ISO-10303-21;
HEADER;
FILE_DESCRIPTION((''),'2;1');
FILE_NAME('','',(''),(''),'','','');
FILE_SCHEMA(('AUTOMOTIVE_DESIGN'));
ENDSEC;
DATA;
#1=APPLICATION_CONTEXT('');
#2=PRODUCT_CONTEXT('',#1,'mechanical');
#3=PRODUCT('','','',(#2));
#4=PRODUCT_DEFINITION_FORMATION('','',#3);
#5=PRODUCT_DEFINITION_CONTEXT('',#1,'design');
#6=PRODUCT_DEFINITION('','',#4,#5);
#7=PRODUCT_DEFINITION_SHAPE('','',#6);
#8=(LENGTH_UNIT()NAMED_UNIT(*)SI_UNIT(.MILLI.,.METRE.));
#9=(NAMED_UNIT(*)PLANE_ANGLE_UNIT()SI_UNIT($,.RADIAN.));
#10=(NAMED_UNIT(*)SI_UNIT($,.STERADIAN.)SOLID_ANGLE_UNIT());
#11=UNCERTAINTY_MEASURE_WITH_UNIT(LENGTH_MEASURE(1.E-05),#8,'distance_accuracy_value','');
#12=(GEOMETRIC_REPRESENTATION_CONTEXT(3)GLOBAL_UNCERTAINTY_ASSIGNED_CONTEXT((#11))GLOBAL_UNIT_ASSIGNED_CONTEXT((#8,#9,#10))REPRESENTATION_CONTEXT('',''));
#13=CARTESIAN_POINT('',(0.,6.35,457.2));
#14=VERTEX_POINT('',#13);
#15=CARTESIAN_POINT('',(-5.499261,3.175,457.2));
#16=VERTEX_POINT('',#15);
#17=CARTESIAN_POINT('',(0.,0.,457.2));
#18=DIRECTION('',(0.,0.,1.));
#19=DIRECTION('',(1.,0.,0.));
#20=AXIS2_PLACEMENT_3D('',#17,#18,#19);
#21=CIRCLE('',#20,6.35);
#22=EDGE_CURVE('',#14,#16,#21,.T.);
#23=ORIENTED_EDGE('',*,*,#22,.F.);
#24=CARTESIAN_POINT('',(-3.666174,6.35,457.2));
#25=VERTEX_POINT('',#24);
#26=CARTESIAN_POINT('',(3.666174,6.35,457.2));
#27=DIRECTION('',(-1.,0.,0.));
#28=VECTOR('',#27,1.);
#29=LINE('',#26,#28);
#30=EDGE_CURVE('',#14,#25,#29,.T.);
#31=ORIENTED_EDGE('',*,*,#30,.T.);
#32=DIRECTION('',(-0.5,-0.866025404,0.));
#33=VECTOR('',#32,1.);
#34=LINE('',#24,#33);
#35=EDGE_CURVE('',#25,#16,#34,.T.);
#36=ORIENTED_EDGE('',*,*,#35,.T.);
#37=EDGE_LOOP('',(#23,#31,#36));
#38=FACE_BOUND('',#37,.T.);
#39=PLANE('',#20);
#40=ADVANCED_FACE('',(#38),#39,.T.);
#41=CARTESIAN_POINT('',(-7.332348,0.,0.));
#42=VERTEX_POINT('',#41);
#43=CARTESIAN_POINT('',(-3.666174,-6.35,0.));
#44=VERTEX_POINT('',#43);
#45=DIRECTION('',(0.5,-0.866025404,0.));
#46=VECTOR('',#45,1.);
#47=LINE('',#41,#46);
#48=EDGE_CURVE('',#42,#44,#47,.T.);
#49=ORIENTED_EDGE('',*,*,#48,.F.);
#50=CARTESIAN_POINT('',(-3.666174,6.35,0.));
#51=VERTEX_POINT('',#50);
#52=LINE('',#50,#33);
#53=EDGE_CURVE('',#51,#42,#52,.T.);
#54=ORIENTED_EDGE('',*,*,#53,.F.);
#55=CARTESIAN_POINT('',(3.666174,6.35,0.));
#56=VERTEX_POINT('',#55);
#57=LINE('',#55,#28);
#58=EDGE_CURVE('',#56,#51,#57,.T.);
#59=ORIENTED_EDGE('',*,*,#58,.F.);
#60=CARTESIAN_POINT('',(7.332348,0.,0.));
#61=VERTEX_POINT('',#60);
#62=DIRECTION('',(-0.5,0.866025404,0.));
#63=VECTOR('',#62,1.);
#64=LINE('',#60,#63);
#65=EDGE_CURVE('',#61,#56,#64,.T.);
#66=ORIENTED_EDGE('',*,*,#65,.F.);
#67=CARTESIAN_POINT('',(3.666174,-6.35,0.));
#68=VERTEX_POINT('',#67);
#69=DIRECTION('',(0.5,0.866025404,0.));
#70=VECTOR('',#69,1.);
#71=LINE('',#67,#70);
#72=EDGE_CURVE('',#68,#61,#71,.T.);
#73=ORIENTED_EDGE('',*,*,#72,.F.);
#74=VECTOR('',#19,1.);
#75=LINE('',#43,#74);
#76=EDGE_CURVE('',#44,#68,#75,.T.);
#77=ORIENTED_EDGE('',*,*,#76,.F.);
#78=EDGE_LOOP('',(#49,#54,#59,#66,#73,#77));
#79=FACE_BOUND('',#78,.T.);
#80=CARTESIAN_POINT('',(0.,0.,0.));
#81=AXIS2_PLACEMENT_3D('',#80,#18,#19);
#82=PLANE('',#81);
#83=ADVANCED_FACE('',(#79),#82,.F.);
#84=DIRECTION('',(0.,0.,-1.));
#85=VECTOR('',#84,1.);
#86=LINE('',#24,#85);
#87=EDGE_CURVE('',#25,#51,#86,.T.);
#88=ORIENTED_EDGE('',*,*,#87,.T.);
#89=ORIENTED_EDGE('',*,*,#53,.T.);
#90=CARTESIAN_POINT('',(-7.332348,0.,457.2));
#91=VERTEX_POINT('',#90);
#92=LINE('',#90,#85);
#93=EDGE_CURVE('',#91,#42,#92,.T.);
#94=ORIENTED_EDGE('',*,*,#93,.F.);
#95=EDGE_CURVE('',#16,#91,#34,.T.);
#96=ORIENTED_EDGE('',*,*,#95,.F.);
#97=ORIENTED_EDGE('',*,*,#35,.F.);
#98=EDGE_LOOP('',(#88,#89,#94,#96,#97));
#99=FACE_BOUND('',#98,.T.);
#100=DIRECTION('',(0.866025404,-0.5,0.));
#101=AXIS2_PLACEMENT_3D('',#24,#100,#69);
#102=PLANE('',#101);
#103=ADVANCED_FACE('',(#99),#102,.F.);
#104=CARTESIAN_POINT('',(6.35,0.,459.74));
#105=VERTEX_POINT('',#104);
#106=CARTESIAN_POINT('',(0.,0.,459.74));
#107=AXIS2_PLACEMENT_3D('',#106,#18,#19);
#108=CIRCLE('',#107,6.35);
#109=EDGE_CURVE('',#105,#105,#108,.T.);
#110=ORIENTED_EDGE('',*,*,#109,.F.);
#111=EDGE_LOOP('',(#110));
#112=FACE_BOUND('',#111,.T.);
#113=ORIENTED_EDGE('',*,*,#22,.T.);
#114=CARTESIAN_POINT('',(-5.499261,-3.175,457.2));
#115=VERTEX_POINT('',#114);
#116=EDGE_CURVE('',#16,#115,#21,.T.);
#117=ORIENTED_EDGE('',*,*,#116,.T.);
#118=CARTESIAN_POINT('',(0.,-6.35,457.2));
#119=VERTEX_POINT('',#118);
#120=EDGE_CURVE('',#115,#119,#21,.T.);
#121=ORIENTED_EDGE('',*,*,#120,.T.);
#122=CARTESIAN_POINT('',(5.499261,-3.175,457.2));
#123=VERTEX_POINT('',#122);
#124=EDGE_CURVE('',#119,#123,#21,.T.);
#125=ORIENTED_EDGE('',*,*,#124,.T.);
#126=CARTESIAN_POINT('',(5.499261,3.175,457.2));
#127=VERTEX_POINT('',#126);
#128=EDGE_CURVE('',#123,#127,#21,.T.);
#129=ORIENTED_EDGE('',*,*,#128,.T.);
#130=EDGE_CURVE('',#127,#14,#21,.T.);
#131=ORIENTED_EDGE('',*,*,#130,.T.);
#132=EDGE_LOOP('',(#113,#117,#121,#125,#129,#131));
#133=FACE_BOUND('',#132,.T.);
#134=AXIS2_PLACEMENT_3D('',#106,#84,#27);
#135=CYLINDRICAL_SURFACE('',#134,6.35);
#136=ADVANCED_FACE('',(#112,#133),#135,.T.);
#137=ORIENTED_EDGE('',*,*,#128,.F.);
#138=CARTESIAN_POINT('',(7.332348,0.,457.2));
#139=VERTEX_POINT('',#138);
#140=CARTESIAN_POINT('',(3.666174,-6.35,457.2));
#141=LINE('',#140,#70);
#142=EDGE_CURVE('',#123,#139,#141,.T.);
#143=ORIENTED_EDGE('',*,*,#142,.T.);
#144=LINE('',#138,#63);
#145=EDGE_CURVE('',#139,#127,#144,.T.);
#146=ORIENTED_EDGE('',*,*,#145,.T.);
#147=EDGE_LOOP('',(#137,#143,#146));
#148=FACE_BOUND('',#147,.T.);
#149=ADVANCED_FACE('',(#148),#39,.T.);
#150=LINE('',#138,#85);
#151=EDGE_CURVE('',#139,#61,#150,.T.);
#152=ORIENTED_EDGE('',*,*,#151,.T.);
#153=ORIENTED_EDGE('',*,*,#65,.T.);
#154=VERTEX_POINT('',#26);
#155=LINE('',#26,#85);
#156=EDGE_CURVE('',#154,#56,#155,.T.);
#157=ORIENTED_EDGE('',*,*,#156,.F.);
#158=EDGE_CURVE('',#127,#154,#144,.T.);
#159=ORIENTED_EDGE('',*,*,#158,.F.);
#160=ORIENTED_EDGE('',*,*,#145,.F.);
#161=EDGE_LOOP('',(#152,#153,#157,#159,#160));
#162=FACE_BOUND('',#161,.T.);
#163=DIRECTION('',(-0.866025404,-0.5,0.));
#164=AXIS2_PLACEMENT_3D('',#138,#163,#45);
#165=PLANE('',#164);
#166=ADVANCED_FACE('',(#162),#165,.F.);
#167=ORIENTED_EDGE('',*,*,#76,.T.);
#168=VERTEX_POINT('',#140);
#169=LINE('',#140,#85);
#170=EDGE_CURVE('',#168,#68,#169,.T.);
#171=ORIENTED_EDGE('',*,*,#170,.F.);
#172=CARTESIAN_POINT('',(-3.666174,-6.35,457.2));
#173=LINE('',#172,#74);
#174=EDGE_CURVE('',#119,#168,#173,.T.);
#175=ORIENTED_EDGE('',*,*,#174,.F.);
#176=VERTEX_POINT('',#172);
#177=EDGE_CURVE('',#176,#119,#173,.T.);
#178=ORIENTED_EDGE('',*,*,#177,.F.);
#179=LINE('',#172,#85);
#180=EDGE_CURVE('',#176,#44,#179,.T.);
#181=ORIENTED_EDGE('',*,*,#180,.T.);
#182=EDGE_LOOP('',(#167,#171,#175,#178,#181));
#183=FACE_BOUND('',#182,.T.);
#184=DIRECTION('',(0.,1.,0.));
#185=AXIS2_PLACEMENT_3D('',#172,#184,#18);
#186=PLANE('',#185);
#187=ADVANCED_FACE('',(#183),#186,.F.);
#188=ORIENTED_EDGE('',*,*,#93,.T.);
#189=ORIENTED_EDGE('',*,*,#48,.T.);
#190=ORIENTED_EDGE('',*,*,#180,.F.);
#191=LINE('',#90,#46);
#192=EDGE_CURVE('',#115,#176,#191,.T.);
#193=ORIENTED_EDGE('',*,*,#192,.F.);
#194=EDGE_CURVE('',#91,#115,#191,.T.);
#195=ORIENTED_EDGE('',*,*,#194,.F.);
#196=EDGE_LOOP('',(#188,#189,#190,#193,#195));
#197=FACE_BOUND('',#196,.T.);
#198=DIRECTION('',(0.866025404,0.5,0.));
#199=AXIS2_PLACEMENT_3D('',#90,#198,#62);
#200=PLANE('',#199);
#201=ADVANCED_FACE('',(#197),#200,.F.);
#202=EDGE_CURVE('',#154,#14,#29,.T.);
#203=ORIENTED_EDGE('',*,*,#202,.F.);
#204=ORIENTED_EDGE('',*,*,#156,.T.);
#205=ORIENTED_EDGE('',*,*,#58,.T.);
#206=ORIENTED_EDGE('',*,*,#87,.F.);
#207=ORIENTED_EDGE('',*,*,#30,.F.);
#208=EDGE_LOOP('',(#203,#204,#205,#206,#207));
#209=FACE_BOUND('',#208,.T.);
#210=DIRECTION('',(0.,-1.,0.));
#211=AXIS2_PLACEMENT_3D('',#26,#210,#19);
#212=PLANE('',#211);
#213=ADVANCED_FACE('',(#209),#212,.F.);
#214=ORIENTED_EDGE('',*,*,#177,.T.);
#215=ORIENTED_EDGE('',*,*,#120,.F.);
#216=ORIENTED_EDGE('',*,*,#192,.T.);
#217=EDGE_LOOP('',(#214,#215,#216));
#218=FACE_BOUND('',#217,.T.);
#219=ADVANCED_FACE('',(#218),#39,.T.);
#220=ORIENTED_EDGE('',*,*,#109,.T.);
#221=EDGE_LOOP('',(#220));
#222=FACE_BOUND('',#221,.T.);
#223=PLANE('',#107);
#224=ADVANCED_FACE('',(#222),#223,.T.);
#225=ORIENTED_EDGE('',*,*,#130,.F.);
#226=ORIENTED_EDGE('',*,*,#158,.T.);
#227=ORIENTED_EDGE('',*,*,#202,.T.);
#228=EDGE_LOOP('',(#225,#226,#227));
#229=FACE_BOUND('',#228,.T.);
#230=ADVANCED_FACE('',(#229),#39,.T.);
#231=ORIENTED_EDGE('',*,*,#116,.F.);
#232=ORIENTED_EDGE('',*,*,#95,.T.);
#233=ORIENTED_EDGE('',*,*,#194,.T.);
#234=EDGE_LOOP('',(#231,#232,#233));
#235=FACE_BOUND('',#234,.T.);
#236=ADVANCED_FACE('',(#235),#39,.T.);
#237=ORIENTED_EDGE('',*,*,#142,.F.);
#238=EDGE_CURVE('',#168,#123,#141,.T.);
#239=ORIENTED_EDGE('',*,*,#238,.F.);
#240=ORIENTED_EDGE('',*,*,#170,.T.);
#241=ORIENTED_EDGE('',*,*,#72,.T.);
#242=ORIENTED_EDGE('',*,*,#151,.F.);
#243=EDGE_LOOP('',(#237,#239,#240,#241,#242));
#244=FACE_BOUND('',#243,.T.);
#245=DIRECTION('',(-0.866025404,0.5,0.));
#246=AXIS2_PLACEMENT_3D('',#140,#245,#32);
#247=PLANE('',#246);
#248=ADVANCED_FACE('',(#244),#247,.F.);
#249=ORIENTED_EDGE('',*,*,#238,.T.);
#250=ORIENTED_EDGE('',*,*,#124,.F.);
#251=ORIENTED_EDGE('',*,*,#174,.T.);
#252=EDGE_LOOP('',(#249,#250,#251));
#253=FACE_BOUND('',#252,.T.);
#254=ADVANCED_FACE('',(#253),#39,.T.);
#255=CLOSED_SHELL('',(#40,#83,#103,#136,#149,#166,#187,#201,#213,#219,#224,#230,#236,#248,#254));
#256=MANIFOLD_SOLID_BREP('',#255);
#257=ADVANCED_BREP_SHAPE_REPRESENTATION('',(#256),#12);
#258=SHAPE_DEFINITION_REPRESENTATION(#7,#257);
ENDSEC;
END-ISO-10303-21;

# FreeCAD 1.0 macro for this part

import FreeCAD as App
import Part
import Sketcher
from FreeCAD import Vector
Q = App.Units.Quantity

doc = App.newDocument("Part")
body = doc.addObject("PartDesign::Body", "Body")

# Sketch on XY plane
sketch1 = body.newObject("Sketcher::SketchObject", "Sketch")
sketch1.AttachmentSupport = (doc.getObject("XY_Plane"), [""])
sketch1.MapMode = "FlatFace"
sketch1.addGeometry([
    Part.LineSegment(Vector(7, 0, 0), Vector(4, 6, 0)),  # 0
    Part.LineSegment(Vector(4, 6, 0), Vector(-4, 6, 0)),  # 1
    Part.LineSegment(Vector(-4, 6, 0), Vector(-7, 0, 0)),  # 2
    Part.LineSegment(Vector(-7, 0, 0), Vector(-4, -6, 0)),  # 3
    Part.LineSegment(Vector(-4, -6, 0), Vector(4, -6, 0)),  # 4
    Part.LineSegment(Vector(4, -6, 0), Vector(7, 0, 0)),  # 5
], False)
sketch1.addConstraint([
    Sketcher.Constraint("Coincident", 0, 2, 1, 1),
    Sketcher.Constraint("Coincident", 1, 2, 2, 1),
    Sketcher.Constraint("Coincident", 2, 2, 3, 1),
    Sketcher.Constraint("Coincident", 3, 2, 4, 1),
    Sketcher.Constraint("Coincident", 4, 2, 5, 1),
    Sketcher.Constraint("Coincident", 5, 2, 0, 1),
    Sketcher.Constraint("Horizontal", 1),
    Sketcher.Constraint("Horizontal", 4),
    Sketcher.Constraint("Symmetric", 0, 2, 3, 2, -1, 1),
    Sketcher.Constraint("Symmetric", 2, 2, 5, 2, -1, 1),
    Sketcher.Constraint("PointOnObject", 2, 2, -1),
    Sketcher.Constraint("Parallel", 2, 5),
    Sketcher.Constraint("Vertical", 1, 2, 3, 2),
    Sketcher.Constraint("Angle", 0, Q("120 deg")),
    Sketcher.Constraint("DistanceY", 3, 2, 1, 2, Q("0.5 in")),
    Sketcher.Constraint("DistanceX", 1, 2, 1, 1, Q("7.332348 mm")),
])
pad1 = body.newObject("PartDesign::Pad", "Pad")
pad1.Profile = sketch1
pad1.Length = Q("18 in")

# Sketch on XY plane
sketch2 = body.newObject("Sketcher::SketchObject", "Sketch001")
sketch2.AttachmentSupport = (doc.getObject("XY_Plane"), [""])
sketch2.MapMode = "FlatFace"
sketch2.AttachmentOffset = App.Placement(Vector(0, 0, 18 * 25.4), App.Rotation())
sketch2.addGeometry(Part.Circle(Vector(0, 0, 0), Vector(0, 0, 1), 6), False)
sketch2.addConstraint([
    Sketcher.Constraint("Coincident", 0, 3, -1, 1),
    Sketcher.Constraint("Diameter", 0, Q("0.5 in")),
])
pad2 = body.newObject("PartDesign::Pad", "Pad001")
pad2.Profile = sketch2
pad2.Length = Q("0.1 in")

doc.recompute()
